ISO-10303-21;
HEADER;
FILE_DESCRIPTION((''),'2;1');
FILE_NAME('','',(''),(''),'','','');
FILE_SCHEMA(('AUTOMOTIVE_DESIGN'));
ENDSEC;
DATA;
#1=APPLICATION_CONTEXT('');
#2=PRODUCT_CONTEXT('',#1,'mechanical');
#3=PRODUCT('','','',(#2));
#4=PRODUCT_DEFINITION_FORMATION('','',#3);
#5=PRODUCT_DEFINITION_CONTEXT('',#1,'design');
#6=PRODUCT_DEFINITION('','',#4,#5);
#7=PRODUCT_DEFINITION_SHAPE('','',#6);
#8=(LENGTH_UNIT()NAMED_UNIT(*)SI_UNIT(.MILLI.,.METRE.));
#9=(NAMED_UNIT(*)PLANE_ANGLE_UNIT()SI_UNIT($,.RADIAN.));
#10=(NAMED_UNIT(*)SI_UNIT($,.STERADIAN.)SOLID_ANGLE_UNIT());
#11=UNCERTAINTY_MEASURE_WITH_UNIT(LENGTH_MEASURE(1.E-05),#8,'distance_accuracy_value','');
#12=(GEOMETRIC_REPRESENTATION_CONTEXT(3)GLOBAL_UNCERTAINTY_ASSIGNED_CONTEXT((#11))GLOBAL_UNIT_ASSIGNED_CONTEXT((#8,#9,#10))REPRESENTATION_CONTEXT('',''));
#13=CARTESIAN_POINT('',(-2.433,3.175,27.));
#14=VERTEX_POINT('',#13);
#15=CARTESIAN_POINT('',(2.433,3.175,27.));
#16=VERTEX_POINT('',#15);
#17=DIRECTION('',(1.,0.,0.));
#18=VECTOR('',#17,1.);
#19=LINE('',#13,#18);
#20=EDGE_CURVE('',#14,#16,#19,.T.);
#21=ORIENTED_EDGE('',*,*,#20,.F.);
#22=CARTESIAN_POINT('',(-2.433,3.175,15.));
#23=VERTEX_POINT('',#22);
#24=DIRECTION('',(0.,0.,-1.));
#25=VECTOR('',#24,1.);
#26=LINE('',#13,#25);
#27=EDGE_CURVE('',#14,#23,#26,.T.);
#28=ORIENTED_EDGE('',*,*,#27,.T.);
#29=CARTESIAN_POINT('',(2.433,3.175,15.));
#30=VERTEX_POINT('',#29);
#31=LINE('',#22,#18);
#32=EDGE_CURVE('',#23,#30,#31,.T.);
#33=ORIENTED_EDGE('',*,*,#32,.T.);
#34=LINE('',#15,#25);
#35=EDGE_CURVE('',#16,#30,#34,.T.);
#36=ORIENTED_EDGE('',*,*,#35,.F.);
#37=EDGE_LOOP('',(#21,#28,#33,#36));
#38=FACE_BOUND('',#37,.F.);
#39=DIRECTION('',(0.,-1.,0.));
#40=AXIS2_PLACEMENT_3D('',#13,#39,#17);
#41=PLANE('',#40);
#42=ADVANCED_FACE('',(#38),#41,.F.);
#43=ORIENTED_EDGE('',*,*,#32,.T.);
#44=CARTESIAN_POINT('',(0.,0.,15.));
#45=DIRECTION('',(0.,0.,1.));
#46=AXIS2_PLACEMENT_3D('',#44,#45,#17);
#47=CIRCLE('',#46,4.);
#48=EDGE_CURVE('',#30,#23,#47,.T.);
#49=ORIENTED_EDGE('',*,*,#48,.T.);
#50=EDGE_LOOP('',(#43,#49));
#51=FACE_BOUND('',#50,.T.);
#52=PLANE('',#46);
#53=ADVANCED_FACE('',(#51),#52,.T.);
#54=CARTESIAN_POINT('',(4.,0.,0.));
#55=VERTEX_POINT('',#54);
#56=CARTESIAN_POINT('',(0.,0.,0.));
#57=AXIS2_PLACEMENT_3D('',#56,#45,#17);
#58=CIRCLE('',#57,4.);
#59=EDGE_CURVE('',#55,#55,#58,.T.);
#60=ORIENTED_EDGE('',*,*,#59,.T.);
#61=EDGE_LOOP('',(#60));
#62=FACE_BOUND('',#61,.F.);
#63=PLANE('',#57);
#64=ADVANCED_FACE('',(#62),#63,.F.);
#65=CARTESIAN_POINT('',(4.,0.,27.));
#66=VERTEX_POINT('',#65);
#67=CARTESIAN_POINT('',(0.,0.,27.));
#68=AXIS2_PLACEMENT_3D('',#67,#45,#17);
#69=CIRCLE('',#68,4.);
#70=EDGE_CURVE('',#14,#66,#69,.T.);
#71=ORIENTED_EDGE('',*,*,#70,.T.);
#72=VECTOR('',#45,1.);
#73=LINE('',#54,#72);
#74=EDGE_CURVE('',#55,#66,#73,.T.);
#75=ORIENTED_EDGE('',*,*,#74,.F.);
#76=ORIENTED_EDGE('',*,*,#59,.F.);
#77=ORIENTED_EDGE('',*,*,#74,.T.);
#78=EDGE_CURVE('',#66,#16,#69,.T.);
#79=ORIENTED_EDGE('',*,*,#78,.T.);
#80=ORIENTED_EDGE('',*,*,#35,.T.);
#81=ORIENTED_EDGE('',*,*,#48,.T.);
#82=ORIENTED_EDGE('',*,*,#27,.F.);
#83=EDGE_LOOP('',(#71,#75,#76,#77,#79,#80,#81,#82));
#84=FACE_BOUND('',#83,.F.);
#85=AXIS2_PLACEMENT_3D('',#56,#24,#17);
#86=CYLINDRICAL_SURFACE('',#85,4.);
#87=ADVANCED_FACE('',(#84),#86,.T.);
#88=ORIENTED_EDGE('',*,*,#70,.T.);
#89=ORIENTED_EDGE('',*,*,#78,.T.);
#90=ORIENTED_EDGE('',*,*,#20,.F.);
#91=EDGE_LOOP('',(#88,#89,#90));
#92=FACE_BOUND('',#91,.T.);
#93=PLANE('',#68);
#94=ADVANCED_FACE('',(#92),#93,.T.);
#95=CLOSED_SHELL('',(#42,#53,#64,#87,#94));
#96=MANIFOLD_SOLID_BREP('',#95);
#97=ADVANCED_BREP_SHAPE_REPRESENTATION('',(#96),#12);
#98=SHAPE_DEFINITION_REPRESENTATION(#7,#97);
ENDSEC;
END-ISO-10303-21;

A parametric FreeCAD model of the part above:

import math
import FreeCAD as App
import Part
import Sketcher

doc = App.newDocument("Part")
body = doc.addObject("PartDesign::Body", "Body")

# Sketch on XY plane
sketch1 = doc.addObject("Sketcher::SketchObject", "Sketch")
body.addObject(sketch1)
sketch1.AttachmentSupport = (doc.XY_Plane, [""])
sketch1.MapMode = "FlatFace"
sketch1.addGeometry(Part.Circle(App.Vector(0, 0, 0), App.Vector(0, 0, 1), 4), False)
sketch1.addConstraint([
    Sketcher.Constraint("Coincident", 0, 3, -1, 1),
    Sketcher.Constraint("Diameter", 0, 8.0),
])
pad1 = doc.addObject("PartDesign::Pad", "Pad")
body.addObject(pad1)
pad1.Profile = sketch1
pad1.Length = 27

# Sketch on XY plane
sketch2 = doc.addObject("Sketcher::SketchObject", "Sketch001")
body.addObject(sketch2)
sketch2.AttachmentSupport = (doc.XY_Plane, [""])
sketch2.MapMode = "FlatFace"
sketch2.AttachmentOffset = App.Placement(App.Vector(0, 0, 27), App.Rotation())
sketch2.addGeometry([
    Part.LineSegment(App.Vector(-2.4, 3.2, 0), App.Vector(2.4, 3.2, 0)),
    Part.ArcOfCircle(Part.Circle(App.Vector(0, 0, 0), App.Vector(0, 0, 1), 4), math.radians(53), math.radians(127)),
], False)
sketch2.addConstraint([
    Sketcher.Constraint("Coincident", 0, 1, 1, 2),
    Sketcher.Constraint("Coincident", 1, 1, 0, 2),
    Sketcher.Constraint("Horizontal", 0),
    Sketcher.Constraint("Coincident", 1, 3, -1, 1),
    Sketcher.Constraint("Radius", 1, 4.0),
    Sketcher.Constraint("DistanceX", 0, 1, 0, 2, 4.866),
])
pocket1 = doc.addObject("PartDesign::Pocket", "Pocket")
body.addObject(pocket1)
pocket1.Profile = sketch2
pocket1.Length = 12

doc.recompute()
